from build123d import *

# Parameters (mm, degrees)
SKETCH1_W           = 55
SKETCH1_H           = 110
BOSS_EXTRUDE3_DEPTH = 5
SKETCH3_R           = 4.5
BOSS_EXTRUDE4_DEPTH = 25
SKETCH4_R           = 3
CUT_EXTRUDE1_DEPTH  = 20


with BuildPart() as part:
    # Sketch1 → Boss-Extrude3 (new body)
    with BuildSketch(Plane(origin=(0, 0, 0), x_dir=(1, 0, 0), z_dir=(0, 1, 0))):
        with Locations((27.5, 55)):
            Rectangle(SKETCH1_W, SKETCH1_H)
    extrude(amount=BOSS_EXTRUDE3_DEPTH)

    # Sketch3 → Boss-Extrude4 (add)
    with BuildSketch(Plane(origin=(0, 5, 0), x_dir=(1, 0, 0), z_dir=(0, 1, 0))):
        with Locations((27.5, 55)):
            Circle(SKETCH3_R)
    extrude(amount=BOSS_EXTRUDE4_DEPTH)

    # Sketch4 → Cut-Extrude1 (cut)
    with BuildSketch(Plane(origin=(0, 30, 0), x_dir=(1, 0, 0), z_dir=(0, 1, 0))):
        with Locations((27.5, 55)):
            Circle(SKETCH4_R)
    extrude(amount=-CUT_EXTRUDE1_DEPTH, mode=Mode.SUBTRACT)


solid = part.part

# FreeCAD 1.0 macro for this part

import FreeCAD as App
import Part
import Sketcher
Q = App.Units.Quantity


def add_polygon(sketch, points):
    """Adds a closed chain of lines whose ends are joined by coincident constraints."""
    first, n = sketch.GeometryCount, len(points)
    for a, b in zip(points, points[1:] + points[:1]):
        sketch.addGeometry(Part.LineSegment(App.Vector(*a, 0), App.Vector(*b, 0)), False)
    for i in range(n):
        sketch.addConstraint(Sketcher.Constraint("Coincident", first + i, 2, first + (i + 1) % n, 1))

doc = App.newDocument("Part")
body = doc.addObject("PartDesign::Body", "Body")

# Sketch on XZ plane
sketch1 = body.newObject("Sketcher::SketchObject", "Sketch")
sketch1.AttachmentSupport = (doc.getObject("XZ_Plane"), [""])
sketch1.MapMode = "FlatFace"
add_polygon(sketch1, [(0, -110), (0, 0), (55, 0), (55, -110)])  # lines 0-3
sketch1.addConstraint(Sketcher.Constraint("Vertical", 0))
sketch1.addConstraint(Sketcher.Constraint("Horizontal", 1))
sketch1.addConstraint(Sketcher.Constraint("Vertical", 2))
sketch1.addConstraint(Sketcher.Constraint("Horizontal", 3))
sketch1.addConstraint(Sketcher.Constraint("Coincident", 0, 2, -1, 1))
sketch1.addConstraint(Sketcher.Constraint("DistanceX", 1, 1, 1, 2, Q("55 mm")))
sketch1.addConstraint(Sketcher.Constraint("DistanceY", 0, 1, 0, 2, Q("110 mm")))
pad1 = body.newObject("PartDesign::Pad", "Pad")
pad1.Profile = sketch1
pad1.Length = 5
pad1.Reversed = True

# Sketch on XZ plane
sketch2 = body.newObject("Sketcher::SketchObject", "Sketch001")
sketch2.AttachmentSupport = (doc.getObject("XZ_Plane"), [""])
sketch2.MapMode = "FlatFace"
sketch2.AttachmentOffset = App.Placement(App.Vector(0, 0, -5), App.Rotation())
sketch2.addGeometry(Part.Circle(App.Vector(27.5, -55, 0), App.Vector(0, 0, 1), 4.5), False)
sketch2.addConstraint(Sketcher.Constraint("Diameter", 0, Q("9 mm")))
sketch2.addConstraint(Sketcher.Constraint("DistanceY", 0, 3, -1, 1, Q("55 mm")))
sketch2.addConstraint(Sketcher.Constraint("DistanceX", -1, 1, 0, 3, Q("27.5 mm")))
pad2 = body.newObject("PartDesign::Pad", "Pad001")
pad2.Profile = sketch2
pad2.Length = 25
pad2.Reversed = True

# Sketch on XZ plane
sketch3 = body.newObject("Sketcher::SketchObject", "Sketch002")
sketch3.AttachmentSupport = (doc.getObject("XZ_Plane"), [""])
sketch3.MapMode = "FlatFace"
sketch3.AttachmentOffset = App.Placement(App.Vector(0, 0, -30), App.Rotation())
sketch3.addGeometry(Part.Circle(App.Vector(27.5, -55, 0), App.Vector(0, 0, 1), 3), False)
sketch3.addConstraint(Sketcher.Constraint("Diameter", 0, Q("6 mm")))
sketch3.addConstraint(Sketcher.Constraint("DistanceY", 0, 3, -1, 1, Q("55 mm")))
sketch3.addConstraint(Sketcher.Constraint("DistanceX", -1, 1, 0, 3, Q("27.5 mm")))
pocket1 = body.newObject("PartDesign::Pocket", "Pocket")
pocket1.Profile = sketch3
pocket1.Length = 20
pocket1.Reversed = True

doc.recompute()
